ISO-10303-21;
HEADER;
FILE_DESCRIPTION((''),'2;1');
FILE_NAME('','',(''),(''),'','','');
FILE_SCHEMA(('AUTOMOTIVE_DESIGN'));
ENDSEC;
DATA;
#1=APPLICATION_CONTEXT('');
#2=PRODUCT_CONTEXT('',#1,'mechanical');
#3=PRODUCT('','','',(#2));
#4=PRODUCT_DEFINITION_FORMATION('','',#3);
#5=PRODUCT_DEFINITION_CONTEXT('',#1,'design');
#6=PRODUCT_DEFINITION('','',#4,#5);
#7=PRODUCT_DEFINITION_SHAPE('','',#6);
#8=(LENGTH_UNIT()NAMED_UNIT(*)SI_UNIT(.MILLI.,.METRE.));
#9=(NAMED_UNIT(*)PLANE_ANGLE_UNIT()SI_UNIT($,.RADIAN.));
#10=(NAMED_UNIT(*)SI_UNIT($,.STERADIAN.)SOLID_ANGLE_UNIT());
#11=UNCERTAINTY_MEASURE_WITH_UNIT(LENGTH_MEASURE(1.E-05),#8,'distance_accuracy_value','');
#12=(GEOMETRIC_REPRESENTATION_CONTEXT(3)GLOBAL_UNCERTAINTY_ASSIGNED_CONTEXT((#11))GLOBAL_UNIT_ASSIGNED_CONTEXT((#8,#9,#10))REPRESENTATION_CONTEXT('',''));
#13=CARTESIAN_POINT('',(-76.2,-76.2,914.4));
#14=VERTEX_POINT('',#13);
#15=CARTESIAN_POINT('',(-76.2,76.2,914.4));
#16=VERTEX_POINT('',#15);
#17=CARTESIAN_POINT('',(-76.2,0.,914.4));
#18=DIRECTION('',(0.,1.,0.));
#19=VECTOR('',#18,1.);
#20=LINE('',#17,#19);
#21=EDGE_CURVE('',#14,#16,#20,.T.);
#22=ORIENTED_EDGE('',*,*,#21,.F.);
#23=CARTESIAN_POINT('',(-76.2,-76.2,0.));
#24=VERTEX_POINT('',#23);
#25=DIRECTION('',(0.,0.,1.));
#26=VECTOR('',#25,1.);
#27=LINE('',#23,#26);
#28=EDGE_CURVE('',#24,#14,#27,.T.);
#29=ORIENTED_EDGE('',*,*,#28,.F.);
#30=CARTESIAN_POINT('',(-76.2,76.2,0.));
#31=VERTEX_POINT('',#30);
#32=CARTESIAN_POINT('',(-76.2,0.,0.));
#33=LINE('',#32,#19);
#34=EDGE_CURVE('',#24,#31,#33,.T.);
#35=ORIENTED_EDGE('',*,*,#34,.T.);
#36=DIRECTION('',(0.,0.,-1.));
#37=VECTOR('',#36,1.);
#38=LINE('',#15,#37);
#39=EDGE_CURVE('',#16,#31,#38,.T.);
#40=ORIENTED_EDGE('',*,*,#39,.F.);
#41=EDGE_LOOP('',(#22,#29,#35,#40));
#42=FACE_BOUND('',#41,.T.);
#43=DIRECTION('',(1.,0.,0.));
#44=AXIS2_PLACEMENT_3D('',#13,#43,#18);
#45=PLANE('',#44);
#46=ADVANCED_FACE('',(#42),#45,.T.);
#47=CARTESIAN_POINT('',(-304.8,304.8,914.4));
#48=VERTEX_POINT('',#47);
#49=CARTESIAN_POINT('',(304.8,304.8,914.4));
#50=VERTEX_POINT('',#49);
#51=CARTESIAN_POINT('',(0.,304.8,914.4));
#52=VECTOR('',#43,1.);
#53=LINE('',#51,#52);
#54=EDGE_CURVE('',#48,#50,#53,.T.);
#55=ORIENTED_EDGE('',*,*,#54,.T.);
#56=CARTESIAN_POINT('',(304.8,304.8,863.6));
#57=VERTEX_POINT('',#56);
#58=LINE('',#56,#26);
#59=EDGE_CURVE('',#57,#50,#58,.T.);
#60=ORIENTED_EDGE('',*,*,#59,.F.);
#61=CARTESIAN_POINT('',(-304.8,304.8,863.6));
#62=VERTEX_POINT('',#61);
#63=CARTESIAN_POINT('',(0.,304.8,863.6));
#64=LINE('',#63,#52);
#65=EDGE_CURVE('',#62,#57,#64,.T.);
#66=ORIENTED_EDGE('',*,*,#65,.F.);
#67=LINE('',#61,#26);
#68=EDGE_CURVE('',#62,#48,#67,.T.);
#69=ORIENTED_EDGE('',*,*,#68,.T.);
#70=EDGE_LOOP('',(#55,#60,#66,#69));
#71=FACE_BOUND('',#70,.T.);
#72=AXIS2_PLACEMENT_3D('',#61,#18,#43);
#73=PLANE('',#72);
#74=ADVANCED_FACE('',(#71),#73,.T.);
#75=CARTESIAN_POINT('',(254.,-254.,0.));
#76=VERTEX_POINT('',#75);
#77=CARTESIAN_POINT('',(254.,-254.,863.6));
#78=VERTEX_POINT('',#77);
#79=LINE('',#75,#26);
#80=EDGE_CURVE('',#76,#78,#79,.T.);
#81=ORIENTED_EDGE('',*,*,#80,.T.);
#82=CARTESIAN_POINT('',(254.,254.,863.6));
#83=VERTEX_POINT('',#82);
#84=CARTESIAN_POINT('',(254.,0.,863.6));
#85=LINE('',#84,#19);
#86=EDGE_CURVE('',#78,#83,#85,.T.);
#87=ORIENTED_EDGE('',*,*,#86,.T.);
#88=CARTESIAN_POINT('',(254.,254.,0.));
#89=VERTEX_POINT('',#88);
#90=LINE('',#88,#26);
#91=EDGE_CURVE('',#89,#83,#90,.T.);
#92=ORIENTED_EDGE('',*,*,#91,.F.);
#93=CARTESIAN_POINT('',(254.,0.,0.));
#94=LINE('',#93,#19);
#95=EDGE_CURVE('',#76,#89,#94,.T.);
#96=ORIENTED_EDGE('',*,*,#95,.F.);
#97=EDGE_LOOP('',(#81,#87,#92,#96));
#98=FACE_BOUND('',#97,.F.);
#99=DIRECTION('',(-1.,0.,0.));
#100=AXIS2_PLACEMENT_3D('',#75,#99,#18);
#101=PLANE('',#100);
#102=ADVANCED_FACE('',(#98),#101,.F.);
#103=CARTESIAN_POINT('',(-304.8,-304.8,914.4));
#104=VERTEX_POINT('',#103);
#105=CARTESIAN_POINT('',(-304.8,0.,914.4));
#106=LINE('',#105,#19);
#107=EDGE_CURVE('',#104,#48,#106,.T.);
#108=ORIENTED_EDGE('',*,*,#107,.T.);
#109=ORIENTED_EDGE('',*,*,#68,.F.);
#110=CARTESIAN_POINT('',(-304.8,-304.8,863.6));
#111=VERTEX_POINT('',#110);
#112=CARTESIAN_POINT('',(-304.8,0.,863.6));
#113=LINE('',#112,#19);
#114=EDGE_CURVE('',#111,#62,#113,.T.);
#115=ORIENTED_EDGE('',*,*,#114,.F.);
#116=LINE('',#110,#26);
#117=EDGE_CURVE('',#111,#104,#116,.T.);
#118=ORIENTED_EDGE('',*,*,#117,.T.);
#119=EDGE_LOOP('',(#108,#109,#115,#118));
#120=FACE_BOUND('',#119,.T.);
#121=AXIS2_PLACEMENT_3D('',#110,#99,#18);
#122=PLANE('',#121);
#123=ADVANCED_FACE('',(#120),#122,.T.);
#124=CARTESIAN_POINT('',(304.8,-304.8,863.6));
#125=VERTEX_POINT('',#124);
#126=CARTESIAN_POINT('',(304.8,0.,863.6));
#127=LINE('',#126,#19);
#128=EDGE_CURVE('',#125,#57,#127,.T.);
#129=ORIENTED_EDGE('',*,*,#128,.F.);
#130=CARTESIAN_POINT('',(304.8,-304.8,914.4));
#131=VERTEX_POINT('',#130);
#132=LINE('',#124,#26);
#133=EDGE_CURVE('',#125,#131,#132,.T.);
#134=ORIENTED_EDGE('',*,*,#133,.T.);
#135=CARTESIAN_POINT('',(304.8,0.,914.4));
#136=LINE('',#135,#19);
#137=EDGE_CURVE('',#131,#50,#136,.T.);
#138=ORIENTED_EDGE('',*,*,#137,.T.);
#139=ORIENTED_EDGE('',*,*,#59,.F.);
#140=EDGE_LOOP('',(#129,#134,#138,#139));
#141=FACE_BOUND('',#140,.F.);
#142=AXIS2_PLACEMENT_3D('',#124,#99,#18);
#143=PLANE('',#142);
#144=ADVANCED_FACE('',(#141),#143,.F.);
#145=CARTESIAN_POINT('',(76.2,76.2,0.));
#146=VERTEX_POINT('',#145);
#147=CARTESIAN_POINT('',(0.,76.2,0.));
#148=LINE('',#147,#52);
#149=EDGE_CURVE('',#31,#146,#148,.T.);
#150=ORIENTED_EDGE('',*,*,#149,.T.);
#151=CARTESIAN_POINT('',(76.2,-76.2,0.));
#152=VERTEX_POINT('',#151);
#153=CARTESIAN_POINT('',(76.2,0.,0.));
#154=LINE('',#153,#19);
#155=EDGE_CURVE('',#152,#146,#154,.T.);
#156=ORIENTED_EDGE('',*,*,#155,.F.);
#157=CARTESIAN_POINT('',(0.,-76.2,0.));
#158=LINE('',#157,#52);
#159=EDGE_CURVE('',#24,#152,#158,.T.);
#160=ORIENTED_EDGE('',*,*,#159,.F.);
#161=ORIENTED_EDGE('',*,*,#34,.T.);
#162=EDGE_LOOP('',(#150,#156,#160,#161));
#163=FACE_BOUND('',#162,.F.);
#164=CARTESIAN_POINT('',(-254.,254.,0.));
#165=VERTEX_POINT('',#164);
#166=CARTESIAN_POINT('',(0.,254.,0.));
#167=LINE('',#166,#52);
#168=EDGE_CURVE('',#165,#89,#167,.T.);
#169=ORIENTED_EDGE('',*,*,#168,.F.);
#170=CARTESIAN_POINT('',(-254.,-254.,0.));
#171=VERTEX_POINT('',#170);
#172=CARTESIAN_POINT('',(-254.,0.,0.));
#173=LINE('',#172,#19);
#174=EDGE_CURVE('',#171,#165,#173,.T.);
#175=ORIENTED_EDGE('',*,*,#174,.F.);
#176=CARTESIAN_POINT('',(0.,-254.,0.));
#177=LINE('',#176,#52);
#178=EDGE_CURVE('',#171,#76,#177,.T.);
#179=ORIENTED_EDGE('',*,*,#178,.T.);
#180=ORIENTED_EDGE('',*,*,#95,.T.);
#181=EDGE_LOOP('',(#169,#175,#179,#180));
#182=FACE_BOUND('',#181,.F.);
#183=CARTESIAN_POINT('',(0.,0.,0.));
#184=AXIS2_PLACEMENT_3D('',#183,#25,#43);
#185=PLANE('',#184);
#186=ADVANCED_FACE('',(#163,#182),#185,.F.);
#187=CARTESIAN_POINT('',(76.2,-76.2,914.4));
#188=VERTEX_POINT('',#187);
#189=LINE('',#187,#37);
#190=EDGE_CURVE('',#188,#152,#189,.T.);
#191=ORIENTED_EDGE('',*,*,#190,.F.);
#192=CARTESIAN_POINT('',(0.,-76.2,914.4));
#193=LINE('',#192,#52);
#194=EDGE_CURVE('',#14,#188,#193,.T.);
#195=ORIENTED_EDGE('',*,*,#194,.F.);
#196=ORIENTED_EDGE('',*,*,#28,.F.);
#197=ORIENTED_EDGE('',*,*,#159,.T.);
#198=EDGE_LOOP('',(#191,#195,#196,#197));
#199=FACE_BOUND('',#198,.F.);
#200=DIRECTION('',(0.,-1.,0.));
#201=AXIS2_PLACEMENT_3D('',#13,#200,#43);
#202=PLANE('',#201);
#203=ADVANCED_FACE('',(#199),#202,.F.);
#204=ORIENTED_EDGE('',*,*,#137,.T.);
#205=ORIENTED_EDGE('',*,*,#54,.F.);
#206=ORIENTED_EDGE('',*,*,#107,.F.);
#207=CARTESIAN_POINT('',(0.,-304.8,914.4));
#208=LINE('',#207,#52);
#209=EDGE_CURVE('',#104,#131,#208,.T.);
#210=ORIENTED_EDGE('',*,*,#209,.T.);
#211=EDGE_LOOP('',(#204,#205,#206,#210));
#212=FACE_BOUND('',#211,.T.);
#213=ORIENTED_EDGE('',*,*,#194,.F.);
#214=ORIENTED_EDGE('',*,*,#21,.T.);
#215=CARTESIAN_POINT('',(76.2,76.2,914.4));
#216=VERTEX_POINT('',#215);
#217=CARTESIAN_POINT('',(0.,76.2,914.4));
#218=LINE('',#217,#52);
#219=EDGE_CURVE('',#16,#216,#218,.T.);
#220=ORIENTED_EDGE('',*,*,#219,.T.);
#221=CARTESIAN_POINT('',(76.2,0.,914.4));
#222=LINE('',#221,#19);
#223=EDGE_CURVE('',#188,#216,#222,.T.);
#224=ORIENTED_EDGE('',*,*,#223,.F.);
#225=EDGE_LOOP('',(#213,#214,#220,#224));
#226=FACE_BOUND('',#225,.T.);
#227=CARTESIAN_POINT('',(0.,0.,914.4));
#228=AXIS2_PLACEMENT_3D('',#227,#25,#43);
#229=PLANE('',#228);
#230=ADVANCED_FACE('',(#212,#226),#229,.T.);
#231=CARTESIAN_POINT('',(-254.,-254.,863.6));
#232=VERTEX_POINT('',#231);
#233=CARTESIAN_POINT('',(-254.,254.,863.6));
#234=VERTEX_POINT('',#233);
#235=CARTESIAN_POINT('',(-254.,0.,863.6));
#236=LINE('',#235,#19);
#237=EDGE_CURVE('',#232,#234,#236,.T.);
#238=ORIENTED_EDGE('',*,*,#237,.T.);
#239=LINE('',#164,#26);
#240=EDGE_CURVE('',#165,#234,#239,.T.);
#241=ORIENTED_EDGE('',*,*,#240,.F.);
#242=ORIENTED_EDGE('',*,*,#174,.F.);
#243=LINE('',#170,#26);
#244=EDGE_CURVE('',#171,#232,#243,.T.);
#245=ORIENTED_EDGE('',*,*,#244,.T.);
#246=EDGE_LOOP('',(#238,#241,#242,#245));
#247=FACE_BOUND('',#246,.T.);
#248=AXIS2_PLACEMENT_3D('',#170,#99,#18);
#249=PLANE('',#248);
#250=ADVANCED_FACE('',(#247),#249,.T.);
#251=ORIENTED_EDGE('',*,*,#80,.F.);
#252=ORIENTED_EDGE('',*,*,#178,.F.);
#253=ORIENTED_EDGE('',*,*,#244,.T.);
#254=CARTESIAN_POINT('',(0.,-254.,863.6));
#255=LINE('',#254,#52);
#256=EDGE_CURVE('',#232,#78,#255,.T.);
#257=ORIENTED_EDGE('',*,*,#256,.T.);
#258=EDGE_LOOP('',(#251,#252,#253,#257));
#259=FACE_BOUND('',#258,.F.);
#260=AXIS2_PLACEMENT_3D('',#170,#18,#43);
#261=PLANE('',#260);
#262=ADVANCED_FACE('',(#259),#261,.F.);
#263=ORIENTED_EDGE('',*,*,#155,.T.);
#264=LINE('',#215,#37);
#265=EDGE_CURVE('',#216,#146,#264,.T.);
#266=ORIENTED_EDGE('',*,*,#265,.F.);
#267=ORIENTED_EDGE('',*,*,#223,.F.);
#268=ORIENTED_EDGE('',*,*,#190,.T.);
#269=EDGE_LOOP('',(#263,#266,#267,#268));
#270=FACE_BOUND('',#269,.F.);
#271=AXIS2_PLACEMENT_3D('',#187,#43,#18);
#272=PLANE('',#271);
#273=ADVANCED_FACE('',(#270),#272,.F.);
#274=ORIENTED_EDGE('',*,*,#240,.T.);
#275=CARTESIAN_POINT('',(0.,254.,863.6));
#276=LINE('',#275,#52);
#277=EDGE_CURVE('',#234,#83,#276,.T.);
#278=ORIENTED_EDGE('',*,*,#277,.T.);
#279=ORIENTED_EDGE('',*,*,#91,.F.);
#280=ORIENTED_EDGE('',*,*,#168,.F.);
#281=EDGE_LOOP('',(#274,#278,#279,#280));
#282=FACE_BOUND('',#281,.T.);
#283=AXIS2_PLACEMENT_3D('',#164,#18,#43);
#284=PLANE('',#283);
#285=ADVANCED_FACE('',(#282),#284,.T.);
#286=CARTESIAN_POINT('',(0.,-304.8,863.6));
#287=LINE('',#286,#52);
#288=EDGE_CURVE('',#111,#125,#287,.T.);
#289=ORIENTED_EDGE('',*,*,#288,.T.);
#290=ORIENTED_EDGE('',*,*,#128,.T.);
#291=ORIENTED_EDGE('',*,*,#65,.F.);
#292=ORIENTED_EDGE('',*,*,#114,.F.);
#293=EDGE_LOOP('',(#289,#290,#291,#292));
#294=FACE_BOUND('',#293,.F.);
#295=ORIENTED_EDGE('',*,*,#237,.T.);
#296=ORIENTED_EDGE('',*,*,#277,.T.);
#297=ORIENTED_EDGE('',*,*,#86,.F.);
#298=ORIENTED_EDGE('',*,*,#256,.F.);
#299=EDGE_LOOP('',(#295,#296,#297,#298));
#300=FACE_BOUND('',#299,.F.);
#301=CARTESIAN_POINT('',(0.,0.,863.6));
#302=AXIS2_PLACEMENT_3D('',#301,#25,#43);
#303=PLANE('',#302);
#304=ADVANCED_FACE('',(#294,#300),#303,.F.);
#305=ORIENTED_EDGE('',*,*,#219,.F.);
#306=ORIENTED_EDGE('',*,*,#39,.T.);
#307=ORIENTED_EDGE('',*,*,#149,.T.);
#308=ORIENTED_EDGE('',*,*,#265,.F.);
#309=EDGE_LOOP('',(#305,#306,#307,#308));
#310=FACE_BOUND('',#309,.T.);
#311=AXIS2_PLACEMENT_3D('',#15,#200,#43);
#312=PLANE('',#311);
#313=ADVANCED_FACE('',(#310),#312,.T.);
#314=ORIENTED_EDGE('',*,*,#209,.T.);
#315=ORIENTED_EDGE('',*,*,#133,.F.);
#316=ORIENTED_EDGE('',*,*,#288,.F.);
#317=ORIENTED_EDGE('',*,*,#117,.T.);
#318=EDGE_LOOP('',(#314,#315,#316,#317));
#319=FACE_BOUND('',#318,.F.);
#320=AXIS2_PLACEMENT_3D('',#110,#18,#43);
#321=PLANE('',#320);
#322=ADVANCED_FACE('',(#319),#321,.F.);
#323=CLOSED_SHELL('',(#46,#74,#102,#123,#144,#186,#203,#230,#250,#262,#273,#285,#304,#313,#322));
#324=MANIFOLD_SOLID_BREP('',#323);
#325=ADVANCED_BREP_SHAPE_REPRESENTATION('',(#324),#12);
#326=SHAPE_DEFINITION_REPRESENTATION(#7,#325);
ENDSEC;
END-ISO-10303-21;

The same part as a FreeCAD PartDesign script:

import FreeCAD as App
import Part
import Sketcher

V = App.Vector
Q = App.Units.Quantity

doc = App.newDocument("Part")
params = doc.addObject("Spreadsheet::Sheet", "Params")
for row, (alias, value) in enumerate([
    ("sketch1_width", "20 in"),
    ("sketch1_width2", "6 in"),
    ("pad1_length", "34 in"),
    ("sketch2_width", "24 in"),
    ("pad2_length", "2 in"),
    ("sketch3_width", "6 in"),
    ("pocket1_length", "10 in"),
], start=1):
    params.set(f"A{row}", alias)
    params.set(f"B{row}", "=" + value)
    params.setAlias(f"B{row}", alias)

body = doc.addObject("PartDesign::Body", "Body")

# Sketch on XY plane
sketch1 = body.newObject("Sketcher::SketchObject", "Sketch")
sketch1.AttachmentSupport = (doc.getObject("XY_Plane"), [""])
sketch1.MapMode = "FlatFace"
sketch1.addGeometry(Part.LineSegment(V(-254, 254, 0), V(-254, -254, 0)), False)
sketch1.addGeometry(Part.LineSegment(V(-254, -254, 0), V(254, -254, 0)), False)
sketch1.addGeometry(Part.LineSegment(V(254, -254, 0), V(254, 254, 0)), False)
sketch1.addGeometry(Part.LineSegment(V(254, 254, 0), V(-254, 254, 0)), False)
sketch1.addGeometry(Part.LineSegment(V(76.2, -76.2, 0), V(-76.2, -76.2, 0)), False)
sketch1.addGeometry(Part.LineSegment(V(-76.2, -76.2, 0), V(-76.2, 76.2, 0)), False)
sketch1.addGeometry(Part.LineSegment(V(-76.2, 76.2, 0), V(76.2, 76.2, 0)), False)
sketch1.addGeometry(Part.LineSegment(V(76.2, 76.2, 0), V(76.2, -76.2, 0)), False)
sketch1.addConstraint(Sketcher.Constraint("Coincident", 0, 2, 1, 1))
sketch1.addConstraint(Sketcher.Constraint("Coincident", 1, 2, 2, 1))
sketch1.addConstraint(Sketcher.Constraint("Coincident", 2, 2, 3, 1))
sketch1.addConstraint(Sketcher.Constraint("Coincident", 3, 2, 0, 1))
sketch1.addConstraint(Sketcher.Constraint("Coincident", 4, 2, 5, 1))
sketch1.addConstraint(Sketcher.Constraint("Coincident", 5, 2, 6, 1))
sketch1.addConstraint(Sketcher.Constraint("Coincident", 6, 2, 7, 1))
sketch1.addConstraint(Sketcher.Constraint("Coincident", 7, 2, 4, 1))
sketch1.addConstraint(Sketcher.Constraint("Vertical", 0))
sketch1.addConstraint(Sketcher.Constraint("Horizontal", 1))
sketch1.addConstraint(Sketcher.Constraint("Vertical", 2))
sketch1.addConstraint(Sketcher.Constraint("Horizontal", 3))
sketch1.addConstraint(Sketcher.Constraint("Horizontal", 4))
sketch1.addConstraint(Sketcher.Constraint("Vertical", 5))
sketch1.addConstraint(Sketcher.Constraint("Horizontal", 6))
sketch1.addConstraint(Sketcher.Constraint("Vertical", 7))
sketch1.addConstraint(Sketcher.Constraint("Symmetric", 0, 2, 2, 2, -1, 1))
sketch1.addConstraint(Sketcher.Constraint("Symmetric", 4, 2, 6, 2, -1, 1))
sketch1.addConstraint(Sketcher.Constraint("Equal", 3, 0))
sketch1.addConstraint(Sketcher.Constraint("Equal", 6, 5))
sketch1.addConstraint(Sketcher.Constraint("DistanceX", 1, 1, 1, 2, Q("20 in")))
sketch1.addConstraint(Sketcher.Constraint("DistanceX", 4, 2, 4, 1, Q("6 in")))
sketch1.setExpression("Constraints[20]", "Params.sketch1_width")
sketch1.setExpression("Constraints[21]", "Params.sketch1_width2")
pad1 = body.newObject("PartDesign::Pad", "Pad")
pad1.Profile = sketch1
pad1.setExpression("Length", "Params.pad1_length")

# Sketch on XY plane
sketch2 = body.newObject("Sketcher::SketchObject", "Sketch001")
sketch2.AttachmentSupport = (doc.getObject("XY_Plane"), [""])
sketch2.MapMode = "FlatFace"
sketch2.AttachmentOffset = App.Placement(V(0, 0, 34 * 25.4), App.Rotation())
sketch2.addGeometry(Part.LineSegment(V(-304.8, 304.8, 0), V(-304.8, -304.8, 0)), False)
sketch2.addGeometry(Part.LineSegment(V(-304.8, -304.8, 0), V(304.8, -304.8, 0)), False)
sketch2.addGeometry(Part.LineSegment(V(304.8, -304.8, 0), V(304.8, 304.8, 0)), False)
sketch2.addGeometry(Part.LineSegment(V(304.8, 304.8, 0), V(-304.8, 304.8, 0)), False)
sketch2.addConstraint(Sketcher.Constraint("Coincident", 0, 2, 1, 1))
sketch2.addConstraint(Sketcher.Constraint("Coincident", 1, 2, 2, 1))
sketch2.addConstraint(Sketcher.Constraint("Coincident", 2, 2, 3, 1))
sketch2.addConstraint(Sketcher.Constraint("Coincident", 3, 2, 0, 1))
sketch2.addConstraint(Sketcher.Constraint("Vertical", 0))
sketch2.addConstraint(Sketcher.Constraint("Horizontal", 1))
sketch2.addConstraint(Sketcher.Constraint("Vertical", 2))
sketch2.addConstraint(Sketcher.Constraint("Horizontal", 3))
sketch2.addConstraint(Sketcher.Constraint("Symmetric", 0, 2, 2, 2, -1, 1))
sketch2.addConstraint(Sketcher.Constraint("Equal", 3, 0))
sketch2.addConstraint(Sketcher.Constraint("DistanceX", 1, 1, 1, 2, Q("24 in")))
sketch2.setExpression("Constraints[10]", "Params.sketch2_width")
pad2 = body.newObject("PartDesign::Pad", "Pad001")
pad2.Profile = sketch2
pad2.setExpression("Length", "Params.pad2_length")

# Sketch on XY plane
sketch3 = body.newObject("Sketcher::SketchObject", "Sketch002")
sketch3.AttachmentSupport = (doc.getObject("XY_Plane"), [""])
sketch3.MapMode = "FlatFace"
sketch3.AttachmentOffset = App.Placement(V(0, 0, 36 * 25.4), App.Rotation())
sketch3.addGeometry(Part.LineSegment(V(-76.2, 76.2, 0), V(-76.2, -76.2, 0)), False)
sketch3.addGeometry(Part.LineSegment(V(-76.2, -76.2, 0), V(76.2, -76.2, 0)), False)
sketch3.addGeometry(Part.LineSegment(V(76.2, -76.2, 0), V(76.2, 76.2, 0)), False)
sketch3.addGeometry(Part.LineSegment(V(76.2, 76.2, 0), V(-76.2, 76.2, 0)), False)
sketch3.addConstraint(Sketcher.Constraint("Coincident", 0, 2, 1, 1))
sketch3.addConstraint(Sketcher.Constraint("Coincident", 1, 2, 2, 1))
sketch3.addConstraint(Sketcher.Constraint("Coincident", 2, 2, 3, 1))
sketch3.addConstraint(Sketcher.Constraint("Coincident", 3, 2, 0, 1))
sketch3.addConstraint(Sketcher.Constraint("Vertical", 0))
sketch3.addConstraint(Sketcher.Constraint("Horizontal", 1))
sketch3.addConstraint(Sketcher.Constraint("Vertical", 2))
sketch3.addConstraint(Sketcher.Constraint("Horizontal", 3))
sketch3.addConstraint(Sketcher.Constraint("Symmetric", 0, 2, 2, 2, -1, 1))
sketch3.addConstraint(Sketcher.Constraint("Equal", 3, 0))
sketch3.addConstraint(Sketcher.Constraint("DistanceX", 1, 1, 1, 2, Q("6 in")))
sketch3.setExpression("Constraints[10]", "Params.sketch3_width")
pocket1 = body.newObject("PartDesign::Pocket", "Pocket")
pocket1.Profile = sketch3
pocket1.setExpression("Length", "Params.pocket1_length")

doc.recompute()
